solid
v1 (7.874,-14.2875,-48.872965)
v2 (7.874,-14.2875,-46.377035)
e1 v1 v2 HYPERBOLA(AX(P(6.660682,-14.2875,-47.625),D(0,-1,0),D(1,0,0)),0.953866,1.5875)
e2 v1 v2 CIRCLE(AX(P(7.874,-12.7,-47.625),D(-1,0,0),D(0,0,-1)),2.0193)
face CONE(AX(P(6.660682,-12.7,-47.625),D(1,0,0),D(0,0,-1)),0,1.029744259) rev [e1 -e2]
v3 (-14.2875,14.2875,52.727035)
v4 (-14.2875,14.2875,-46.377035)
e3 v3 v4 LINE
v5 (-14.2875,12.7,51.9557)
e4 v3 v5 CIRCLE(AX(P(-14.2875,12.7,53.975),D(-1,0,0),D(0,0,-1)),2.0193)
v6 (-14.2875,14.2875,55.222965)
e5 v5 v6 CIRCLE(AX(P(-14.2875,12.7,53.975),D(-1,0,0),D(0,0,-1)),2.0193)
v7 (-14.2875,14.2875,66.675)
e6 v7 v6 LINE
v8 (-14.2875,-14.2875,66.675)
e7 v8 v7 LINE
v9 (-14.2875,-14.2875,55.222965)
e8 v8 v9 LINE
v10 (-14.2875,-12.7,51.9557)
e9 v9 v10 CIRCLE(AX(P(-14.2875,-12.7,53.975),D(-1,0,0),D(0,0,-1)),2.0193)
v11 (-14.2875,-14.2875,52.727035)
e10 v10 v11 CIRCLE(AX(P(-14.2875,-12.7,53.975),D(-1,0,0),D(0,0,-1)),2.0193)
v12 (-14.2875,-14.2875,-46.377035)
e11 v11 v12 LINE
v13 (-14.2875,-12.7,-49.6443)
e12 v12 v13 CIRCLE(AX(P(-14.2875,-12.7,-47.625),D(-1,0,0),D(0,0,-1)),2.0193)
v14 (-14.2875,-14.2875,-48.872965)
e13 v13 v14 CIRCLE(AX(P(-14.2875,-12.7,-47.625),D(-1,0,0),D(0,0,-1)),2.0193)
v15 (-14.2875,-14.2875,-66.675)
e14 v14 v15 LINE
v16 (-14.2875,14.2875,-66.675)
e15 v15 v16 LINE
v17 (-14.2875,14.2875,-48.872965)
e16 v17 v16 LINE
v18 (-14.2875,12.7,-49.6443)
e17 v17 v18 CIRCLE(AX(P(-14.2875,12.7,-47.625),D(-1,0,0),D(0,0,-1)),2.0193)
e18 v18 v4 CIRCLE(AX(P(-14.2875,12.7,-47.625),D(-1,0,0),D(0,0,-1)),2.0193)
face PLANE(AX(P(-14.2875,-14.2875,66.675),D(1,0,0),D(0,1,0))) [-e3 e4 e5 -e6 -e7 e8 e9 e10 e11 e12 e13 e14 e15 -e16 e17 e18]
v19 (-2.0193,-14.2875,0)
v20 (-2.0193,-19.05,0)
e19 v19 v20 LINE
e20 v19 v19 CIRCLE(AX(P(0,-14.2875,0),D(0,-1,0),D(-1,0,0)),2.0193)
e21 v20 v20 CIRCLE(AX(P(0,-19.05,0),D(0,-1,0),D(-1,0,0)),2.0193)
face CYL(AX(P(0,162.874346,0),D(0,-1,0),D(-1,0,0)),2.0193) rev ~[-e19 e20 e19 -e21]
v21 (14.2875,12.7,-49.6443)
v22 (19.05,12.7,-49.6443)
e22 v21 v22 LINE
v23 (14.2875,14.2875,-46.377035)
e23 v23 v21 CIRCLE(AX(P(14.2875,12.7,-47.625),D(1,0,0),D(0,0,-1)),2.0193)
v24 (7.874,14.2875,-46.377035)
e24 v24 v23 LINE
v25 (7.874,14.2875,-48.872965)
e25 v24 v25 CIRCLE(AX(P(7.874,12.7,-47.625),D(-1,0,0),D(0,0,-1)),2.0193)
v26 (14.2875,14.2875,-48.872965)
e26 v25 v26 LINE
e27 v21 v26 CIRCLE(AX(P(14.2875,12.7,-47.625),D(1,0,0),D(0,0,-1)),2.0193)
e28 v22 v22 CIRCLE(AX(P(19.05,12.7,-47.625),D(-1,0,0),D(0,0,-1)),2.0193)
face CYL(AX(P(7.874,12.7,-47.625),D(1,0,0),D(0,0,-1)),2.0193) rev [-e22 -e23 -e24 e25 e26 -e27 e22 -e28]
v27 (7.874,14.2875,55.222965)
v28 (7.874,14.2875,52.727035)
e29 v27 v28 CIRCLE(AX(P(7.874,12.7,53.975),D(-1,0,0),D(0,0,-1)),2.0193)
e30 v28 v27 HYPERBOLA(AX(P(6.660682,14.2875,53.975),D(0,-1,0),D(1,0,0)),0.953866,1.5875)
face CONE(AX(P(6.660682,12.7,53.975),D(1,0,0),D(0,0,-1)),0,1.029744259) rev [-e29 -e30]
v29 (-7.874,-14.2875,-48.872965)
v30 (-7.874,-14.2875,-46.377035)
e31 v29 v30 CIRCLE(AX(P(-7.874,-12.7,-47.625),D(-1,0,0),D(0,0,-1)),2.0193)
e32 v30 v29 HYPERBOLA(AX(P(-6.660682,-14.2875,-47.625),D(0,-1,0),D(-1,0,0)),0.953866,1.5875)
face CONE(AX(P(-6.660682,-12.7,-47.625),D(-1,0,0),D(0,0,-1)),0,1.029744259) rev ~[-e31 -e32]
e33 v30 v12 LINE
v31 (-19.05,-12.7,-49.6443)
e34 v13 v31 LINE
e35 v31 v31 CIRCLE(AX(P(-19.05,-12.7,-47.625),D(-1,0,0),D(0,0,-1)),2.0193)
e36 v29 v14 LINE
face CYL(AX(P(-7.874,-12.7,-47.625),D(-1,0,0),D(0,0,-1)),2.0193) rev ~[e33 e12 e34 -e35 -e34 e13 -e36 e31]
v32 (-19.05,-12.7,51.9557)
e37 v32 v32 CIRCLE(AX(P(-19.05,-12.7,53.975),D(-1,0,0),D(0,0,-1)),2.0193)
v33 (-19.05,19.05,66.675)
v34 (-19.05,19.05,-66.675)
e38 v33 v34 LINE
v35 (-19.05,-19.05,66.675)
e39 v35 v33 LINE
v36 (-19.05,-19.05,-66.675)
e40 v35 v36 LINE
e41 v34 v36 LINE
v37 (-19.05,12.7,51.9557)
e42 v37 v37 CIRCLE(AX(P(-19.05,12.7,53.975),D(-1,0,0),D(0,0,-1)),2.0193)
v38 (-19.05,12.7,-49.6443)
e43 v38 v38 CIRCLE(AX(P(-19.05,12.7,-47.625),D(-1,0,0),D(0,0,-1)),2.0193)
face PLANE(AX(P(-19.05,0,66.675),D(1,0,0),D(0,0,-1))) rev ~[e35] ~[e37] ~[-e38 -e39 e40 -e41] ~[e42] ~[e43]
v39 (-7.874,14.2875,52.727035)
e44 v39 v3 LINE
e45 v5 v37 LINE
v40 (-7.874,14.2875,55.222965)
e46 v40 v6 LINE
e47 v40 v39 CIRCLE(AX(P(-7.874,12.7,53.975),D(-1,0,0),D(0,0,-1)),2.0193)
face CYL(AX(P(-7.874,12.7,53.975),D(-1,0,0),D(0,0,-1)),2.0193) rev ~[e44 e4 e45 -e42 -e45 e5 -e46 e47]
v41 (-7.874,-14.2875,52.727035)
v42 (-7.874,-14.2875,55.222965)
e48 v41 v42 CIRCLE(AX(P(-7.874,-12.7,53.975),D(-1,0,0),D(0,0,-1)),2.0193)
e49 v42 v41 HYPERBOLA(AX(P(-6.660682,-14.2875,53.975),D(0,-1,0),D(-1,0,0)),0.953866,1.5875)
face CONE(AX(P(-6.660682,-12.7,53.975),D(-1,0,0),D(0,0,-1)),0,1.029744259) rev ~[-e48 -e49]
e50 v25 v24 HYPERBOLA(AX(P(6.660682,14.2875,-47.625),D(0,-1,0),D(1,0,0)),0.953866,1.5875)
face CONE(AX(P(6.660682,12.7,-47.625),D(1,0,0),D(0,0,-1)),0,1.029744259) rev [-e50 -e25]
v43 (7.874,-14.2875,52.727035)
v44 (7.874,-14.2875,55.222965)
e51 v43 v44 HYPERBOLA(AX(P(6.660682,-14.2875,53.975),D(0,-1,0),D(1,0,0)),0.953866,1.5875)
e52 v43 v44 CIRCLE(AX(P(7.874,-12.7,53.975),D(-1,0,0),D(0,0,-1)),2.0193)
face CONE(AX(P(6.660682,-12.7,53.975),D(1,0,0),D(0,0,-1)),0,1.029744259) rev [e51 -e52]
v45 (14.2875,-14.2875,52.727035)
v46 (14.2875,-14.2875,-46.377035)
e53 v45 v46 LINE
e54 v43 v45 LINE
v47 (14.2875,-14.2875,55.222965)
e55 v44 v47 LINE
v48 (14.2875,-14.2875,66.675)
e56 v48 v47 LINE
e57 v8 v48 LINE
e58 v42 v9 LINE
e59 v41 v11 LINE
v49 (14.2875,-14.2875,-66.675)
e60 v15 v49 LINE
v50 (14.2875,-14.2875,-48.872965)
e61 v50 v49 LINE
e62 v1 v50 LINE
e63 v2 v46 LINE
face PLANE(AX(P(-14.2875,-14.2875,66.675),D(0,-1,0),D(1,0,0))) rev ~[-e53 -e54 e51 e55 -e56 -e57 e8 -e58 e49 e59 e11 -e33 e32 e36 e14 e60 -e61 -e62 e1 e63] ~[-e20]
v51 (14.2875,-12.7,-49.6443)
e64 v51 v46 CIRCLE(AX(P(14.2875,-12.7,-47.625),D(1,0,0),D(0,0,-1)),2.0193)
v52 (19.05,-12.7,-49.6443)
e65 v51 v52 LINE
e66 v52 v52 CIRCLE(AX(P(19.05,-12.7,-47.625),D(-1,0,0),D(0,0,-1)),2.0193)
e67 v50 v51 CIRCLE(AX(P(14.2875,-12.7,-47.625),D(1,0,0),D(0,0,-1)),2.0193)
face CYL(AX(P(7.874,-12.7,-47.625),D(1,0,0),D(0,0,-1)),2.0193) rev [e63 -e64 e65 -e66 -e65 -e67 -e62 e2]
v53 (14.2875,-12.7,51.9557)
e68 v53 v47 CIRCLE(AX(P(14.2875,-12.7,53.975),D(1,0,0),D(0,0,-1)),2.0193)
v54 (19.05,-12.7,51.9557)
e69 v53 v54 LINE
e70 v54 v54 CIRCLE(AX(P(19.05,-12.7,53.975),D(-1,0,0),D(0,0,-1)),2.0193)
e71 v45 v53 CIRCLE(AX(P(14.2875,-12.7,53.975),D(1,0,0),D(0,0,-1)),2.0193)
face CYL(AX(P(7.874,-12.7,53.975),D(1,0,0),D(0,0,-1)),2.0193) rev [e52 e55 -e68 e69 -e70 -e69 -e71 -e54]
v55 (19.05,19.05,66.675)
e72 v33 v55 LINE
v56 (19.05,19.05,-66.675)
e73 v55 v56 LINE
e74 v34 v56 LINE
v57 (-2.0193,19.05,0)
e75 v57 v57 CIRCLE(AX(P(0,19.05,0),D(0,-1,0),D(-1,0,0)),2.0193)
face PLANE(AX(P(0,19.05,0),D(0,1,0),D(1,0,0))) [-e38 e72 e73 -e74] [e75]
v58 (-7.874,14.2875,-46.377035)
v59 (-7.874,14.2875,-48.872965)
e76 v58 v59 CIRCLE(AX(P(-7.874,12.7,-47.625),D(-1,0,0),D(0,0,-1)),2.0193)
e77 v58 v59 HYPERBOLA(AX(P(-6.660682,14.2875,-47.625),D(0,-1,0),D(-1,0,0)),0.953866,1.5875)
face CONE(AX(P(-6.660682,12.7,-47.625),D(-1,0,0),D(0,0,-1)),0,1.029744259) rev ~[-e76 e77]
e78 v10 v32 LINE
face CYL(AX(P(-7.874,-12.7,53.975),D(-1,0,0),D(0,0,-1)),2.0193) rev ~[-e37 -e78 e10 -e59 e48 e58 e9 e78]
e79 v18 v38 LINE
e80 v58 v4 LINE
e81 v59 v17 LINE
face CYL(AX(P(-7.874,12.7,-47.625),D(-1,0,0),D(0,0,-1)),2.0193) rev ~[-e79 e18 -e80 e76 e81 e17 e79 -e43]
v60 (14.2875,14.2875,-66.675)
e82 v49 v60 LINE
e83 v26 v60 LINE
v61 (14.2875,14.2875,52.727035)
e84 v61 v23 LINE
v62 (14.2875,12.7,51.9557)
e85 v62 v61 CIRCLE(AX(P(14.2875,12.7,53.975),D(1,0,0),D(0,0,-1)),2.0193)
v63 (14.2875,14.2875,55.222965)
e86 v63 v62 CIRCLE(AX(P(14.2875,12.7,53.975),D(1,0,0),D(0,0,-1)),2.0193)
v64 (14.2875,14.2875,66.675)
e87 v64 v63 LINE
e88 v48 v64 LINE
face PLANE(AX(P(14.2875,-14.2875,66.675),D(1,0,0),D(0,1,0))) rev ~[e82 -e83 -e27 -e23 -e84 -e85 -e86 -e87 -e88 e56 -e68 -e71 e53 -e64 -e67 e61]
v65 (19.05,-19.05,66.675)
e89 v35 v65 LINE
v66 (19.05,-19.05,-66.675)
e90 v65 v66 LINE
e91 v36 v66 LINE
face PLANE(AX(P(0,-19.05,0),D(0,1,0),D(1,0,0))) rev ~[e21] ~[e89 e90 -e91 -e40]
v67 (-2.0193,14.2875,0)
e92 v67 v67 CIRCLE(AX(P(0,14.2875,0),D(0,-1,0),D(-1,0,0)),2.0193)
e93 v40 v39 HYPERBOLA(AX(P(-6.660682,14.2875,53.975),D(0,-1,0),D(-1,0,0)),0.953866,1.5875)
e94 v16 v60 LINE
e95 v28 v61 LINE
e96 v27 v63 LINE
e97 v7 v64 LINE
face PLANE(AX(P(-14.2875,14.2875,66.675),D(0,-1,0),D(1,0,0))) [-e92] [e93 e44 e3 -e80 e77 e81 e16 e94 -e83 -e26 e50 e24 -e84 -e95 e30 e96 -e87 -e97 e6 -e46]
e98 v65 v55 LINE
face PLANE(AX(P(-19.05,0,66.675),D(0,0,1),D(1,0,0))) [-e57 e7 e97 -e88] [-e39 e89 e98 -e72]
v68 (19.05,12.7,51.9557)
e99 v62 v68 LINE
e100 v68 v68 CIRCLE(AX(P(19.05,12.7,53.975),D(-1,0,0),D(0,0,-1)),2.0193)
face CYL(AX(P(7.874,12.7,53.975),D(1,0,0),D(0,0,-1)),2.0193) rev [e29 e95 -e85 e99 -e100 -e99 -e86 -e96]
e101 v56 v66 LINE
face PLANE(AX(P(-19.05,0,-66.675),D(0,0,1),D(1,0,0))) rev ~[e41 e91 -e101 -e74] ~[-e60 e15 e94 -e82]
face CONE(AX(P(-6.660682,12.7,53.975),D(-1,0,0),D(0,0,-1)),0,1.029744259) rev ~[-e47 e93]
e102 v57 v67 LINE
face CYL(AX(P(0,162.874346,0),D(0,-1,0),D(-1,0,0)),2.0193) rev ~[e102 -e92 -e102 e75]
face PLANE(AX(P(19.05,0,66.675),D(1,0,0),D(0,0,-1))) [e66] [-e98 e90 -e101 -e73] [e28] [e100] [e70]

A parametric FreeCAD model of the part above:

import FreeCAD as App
import Part
import Sketcher
from FreeCAD import Vector
Q = App.Units.Quantity


def add_polygon(sketch, points):
    """Adds a closed chain of lines whose ends are joined by coincident constraints."""
    first, n = sketch.GeometryCount, len(points)
    for a, b in zip(points, points[1:] + points[:1]):
        sketch.addGeometry(Part.LineSegment(App.Vector(*a, 0), App.Vector(*b, 0)), False)
    for i in range(n):
        sketch.addConstraint(Sketcher.Constraint("Coincident", first + i, 2, first + (i + 1) % n, 1))

doc = App.newDocument("Part")
body = doc.addObject("PartDesign::Body", "Body")

sketch1 = doc.addObject("Sketcher::SketchObject", "Sketch")
body.addObject(sketch1)
sketch1.AttachmentSupport = (doc.XZ_Plane, [""])
sketch1.MapMode = "FlatFace"
add_polygon(sketch1, [(-19.05, -66.675), (-19.05, 66.675), (19.05, 66.675), (19.05, -66.675)])
sketch1.addConstraint([
    Sketcher.Constraint("Vertical", 0),
    Sketcher.Constraint("Horizontal", 1),
    Sketcher.Constraint("Vertical", 2),
    Sketcher.Constraint("Horizontal", 3),
    Sketcher.Constraint("Symmetric", 0, 2, 2, 2, -1, 1),
    Sketcher.Constraint("DistanceX", 1, 1, 1, 2, Q("1.5 in")),
    Sketcher.Constraint("DistanceY", 0, 1, 0, 2, Q("5.25 in")),
])
pad1 = doc.addObject("PartDesign::Pad", "Pad")
body.addObject(pad1)
pad1.Profile = sketch1
pad1.Length = Q("1.5 in")
pad1.Midplane = True

sketch2 = doc.addObject("Sketcher::SketchObject", "Sketch001")
body.addObject(sketch2)
sketch2.AttachmentSupport = (doc.XY_Plane, [""])
sketch2.MapMode = "FlatFace"
sketch2.AttachmentOffset = App.Placement(Vector(0, 0, 2.625 * 25.4), App.Rotation())
add_polygon(sketch2, [(-14.2875, 14.2875), (-14.2875, -14.2875), (14.2875, -14.2875), (14.2875, 14.2875)])
sketch2.addConstraint([
    Sketcher.Constraint("Vertical", 0),
    Sketcher.Constraint("Horizontal", 1),
    Sketcher.Constraint("Vertical", 2),
    Sketcher.Constraint("Horizontal", 3),
    Sketcher.Constraint("Symmetric", 0, 2, 2, 2, -1, 1),
    Sketcher.Constraint("Equal", 3, 0),
    Sketcher.Constraint("DistanceX", 1, 1, 1, 2, Q("1.125 in")),
])
pocket1 = doc.addObject("PartDesign::Pocket", "Pocket")
body.addObject(pocket1)
pocket1.Profile = sketch2
pocket1.Type = "ThroughAll"

sketch3 = doc.addObject("Sketcher::SketchObject", "Sketch002")
body.addObject(sketch3)
sketch3.AttachmentSupport = (doc.XZ_Plane, [""])
sketch3.MapMode = "FlatFace"
sketch3.AttachmentOffset = App.Placement(Vector(0, 0, 0.5 * 25.4), App.Rotation())
add_polygon(sketch3, [(6.660682, 53.975), (19.05, 53.975), (19.05, 51.9557), (7.874, 51.9557)])
sketch3.addGeometry(Part.LineSegment(Vector(19.05, 53.975, 0), Vector(6.660682, 53.975, 0)), True)
sketch3.addConstraint([
    Sketcher.Constraint("Horizontal", 0),
    Sketcher.Constraint("Vertical", 1),
    Sketcher.Constraint("Horizontal", 2),
    Sketcher.Constraint("Horizontal", 4),
    Sketcher.Constraint("Coincident", 4, 1, 0, 2),
    Sketcher.Constraint("Equal", 0, 4),
    Sketcher.Constraint("Angle", 3, Q("121 deg")),
    Sketcher.Constraint("DistanceX", 2, 2, 2, 1, Q("0.44 in")),
    Sketcher.Constraint("DistanceX", -1, 1, 0, 2, Q("0.75 in")),
    Sketcher.Constraint("DistanceY", 1, 2, 1, 1, Q("0.0795 in")),
    Sketcher.Constraint("DistanceY", -1, 1, 0, 2, Q("2.125 in")),
])
groove = doc.addObject("PartDesign::Groove", "Groove")
body.addObject(groove)
groove.Profile = sketch3
groove.ReferenceAxis = (sketch3, ["Axis0"])
groove.Angle = 360
doc.recompute()

linearpattern = doc.addObject("PartDesign::LinearPattern", "LinearPattern")
body.addObject(linearpattern)
linearpattern.Originals = [groove]
linearpattern.Direction = (doc.Y_Axis, [""])
linearpattern.Mode = "offset"
linearpattern.Offset = Q("1 in")
linearpattern.Occurrences = 2
body.Tip = linearpattern
doc.recompute()

datumline = doc.addObject("PartDesign::Line", "DatumLine")
body.addObject(datumline)
datumline.Placement = App.Placement(Vector(0, 0, 0), App.Rotation(Vector(0, 0, 1), Vector(0, 0.242535625, -0.9701425)))
linearpattern2 = doc.addObject("PartDesign::LinearPattern", "LinearPattern001")
body.addObject(linearpattern2)
linearpattern2.Originals = [groove]
linearpattern2.Direction = (datumline, [""])
linearpattern2.Mode = "offset"
linearpattern2.Offset = 104.726883
linearpattern2.Occurrences = 2
body.Tip = linearpattern2
doc.recompute()

linearpattern3 = doc.addObject("PartDesign::LinearPattern", "LinearPattern002")
body.addObject(linearpattern3)
linearpattern3.Originals = [groove]
linearpattern3.Direction = (doc.Z_Axis, [""])
linearpattern3.Mode = "offset"
linearpattern3.Offset = Q("4 in")
linearpattern3.Occurrences = 2
linearpattern3.Reversed = True
body.Tip = linearpattern3

sketch4 = doc.addObject("Sketcher::SketchObject", "Sketch003")
body.addObject(sketch4)
sketch4.AttachmentSupport = (doc.XZ_Plane, [""])
sketch4.MapMode = "FlatFace"
sketch4.AttachmentOffset = App.Placement(Vector(0, 0, -0.75 * 25.4), App.Rotation())
sketch4.addGeometry(Part.Circle(Vector(0, 0, 0), Vector(0, 0, 1), 2.0193), False)
sketch4.addConstraint([
    Sketcher.Constraint("Coincident", 0, 3, -1, 1),
    Sketcher.Constraint("Diameter", 0, Q("0.159 in")),
])
doc.recompute()
hole = doc.addObject("PartDesign::Hole", "Hole")
body.addObject(hole)
hole.Profile = sketch4
hole.ThreadType = "None"
hole.Diameter = Q("0.159 in")
hole.DepthType = "ThroughAll"
hole.Reversed = True
doc.recompute()

mirrored = doc.addObject("PartDesign::Mirrored", "Mirrored")
body.addObject(mirrored)
mirrored.Originals = [groove]
mirrored.MirrorPlane = (doc.YZ_Plane, [""])
body.Tip = mirrored

sketch5 = doc.addObject("Sketcher::SketchObject", "Sketch004")
body.addObject(sketch5)
sketch5.AttachmentSupport = (doc.XZ_Plane, [""])
sketch5.MapMode = "FlatFace"
sketch5.AttachmentOffset = App.Placement(Vector(0, 0, -0.5 * 25.4), App.Rotation())
add_polygon(sketch5, [(-19.05, 53.975), (-6.660682, 53.975), (-7.874, 51.9557), (-19.05, 51.9557)])
sketch5.addGeometry(Part.LineSegment(Vector(-6.660682, 53.975, 0), Vector(-19.05, 53.975, 0)), True)
sketch5.addConstraint([
    Sketcher.Constraint("Horizontal", 0),
    Sketcher.Constraint("Horizontal", 2),
    Sketcher.Constraint("Vertical", 3),
    Sketcher.Constraint("Horizontal", 4),
    Sketcher.Constraint("Coincident", 4, 1, 0, 2),
    Sketcher.Constraint("Vertical", 2, 2, 4, 2),
    Sketcher.Constraint("Angle", 1, Q("-121 deg")),
    Sketcher.Constraint("DistanceX", 2, 2, 2, 1, Q("0.44 in")),
    Sketcher.Constraint("DistanceX", 1, 2, -1, 1, Q("0.31 in")),
    Sketcher.Constraint("DistanceY", 3, 1, 3, 2, Q("0.0795 in")),
    Sketcher.Constraint("DistanceY", -1, 1, 0, 2, Q("2.125 in")),
])
groove2 = doc.addObject("PartDesign::Groove", "Groove001")
body.addObject(groove2)
groove2.Profile = sketch5
groove2.ReferenceAxis = (sketch5, ["Axis0"])
groove2.Angle = 360

sketch6 = doc.addObject("Sketcher::SketchObject", "Sketch005")
body.addObject(sketch6)
sketch6.AttachmentSupport = (doc.XZ_Plane, [""])
sketch6.MapMode = "FlatFace"
sketch6.AttachmentOffset = App.Placement(Vector(0, 0, -0.5 * 25.4), App.Rotation())
add_polygon(sketch6, [(-19.05, -47.625), (-6.660682, -47.625), (-7.874, -49.6443), (-19.05, -49.6443)])
sketch6.addGeometry(Part.LineSegment(Vector(-6.660682, -47.625, 0), Vector(-19.05, -47.625, 0)), True)
sketch6.addConstraint([
    Sketcher.Constraint("Horizontal", 0),
    Sketcher.Constraint("Horizontal", 2),
    Sketcher.Constraint("Vertical", 3),
    Sketcher.Constraint("Horizontal", 4),
    Sketcher.Constraint("Coincident", 4, 1, 0, 2),
    Sketcher.Constraint("Vertical", 2, 2, 4, 2),
    Sketcher.Constraint("Angle", 1, Q("-121 deg")),
    Sketcher.Constraint("DistanceX", 2, 2, 2, 1, Q("0.44 in")),
    Sketcher.Constraint("DistanceX", 1, 2, -1, 1, Q("0.31 in")),
    Sketcher.Constraint("DistanceY", 3, 1, 3, 2, Q("0.0795 in")),
    Sketcher.Constraint("DistanceY", 0, 2, -1, 1, Q("1.875 in")),
])
groove3 = doc.addObject("PartDesign::Groove", "Groove002")
body.addObject(groove3)
groove3.Profile = sketch6
groove3.ReferenceAxis = (sketch6, ["Axis0"])
groove3.Angle = 360

sketch7 = doc.addObject("Sketcher::SketchObject", "Sketch006")
body.addObject(sketch7)
sketch7.AttachmentSupport = (doc.XZ_Plane, [""])
sketch7.MapMode = "FlatFace"
sketch7.AttachmentOffset = App.Placement(Vector(0, 0, 0.5 * 25.4), App.Rotation())
add_polygon(sketch7, [(-19.05, -47.625), (-6.660682, -47.625), (-7.874, -49.6443), (-19.05, -49.6443)])
sketch7.addGeometry(Part.LineSegment(Vector(-6.660682, -47.625, 0), Vector(-19.05, -47.625, 0)), True)
sketch7.addConstraint([
    Sketcher.Constraint("Horizontal", 0),
    Sketcher.Constraint("Horizontal", 2),
    Sketcher.Constraint("Vertical", 3),
    Sketcher.Constraint("Horizontal", 4),
    Sketcher.Constraint("Coincident", 4, 1, 0, 2),
    Sketcher.Constraint("Vertical", 2, 2, 4, 2),
    Sketcher.Constraint("Angle", 1, Q("-121 deg")),
    Sketcher.Constraint("DistanceX", 2, 2, 2, 1, Q("0.44 in")),
    Sketcher.Constraint("DistanceX", 1, 2, -1, 1, Q("0.31 in")),
    Sketcher.Constraint("DistanceY", 3, 1, 3, 2, Q("0.0795 in")),
    Sketcher.Constraint("DistanceY", 0, 2, -1, 1, Q("1.875 in")),
])
groove4 = doc.addObject("PartDesign::Groove", "Groove003")
body.addObject(groove4)
groove4.Profile = sketch7
groove4.ReferenceAxis = (sketch7, ["Axis0"])
groove4.Angle = 360

doc.recompute()
